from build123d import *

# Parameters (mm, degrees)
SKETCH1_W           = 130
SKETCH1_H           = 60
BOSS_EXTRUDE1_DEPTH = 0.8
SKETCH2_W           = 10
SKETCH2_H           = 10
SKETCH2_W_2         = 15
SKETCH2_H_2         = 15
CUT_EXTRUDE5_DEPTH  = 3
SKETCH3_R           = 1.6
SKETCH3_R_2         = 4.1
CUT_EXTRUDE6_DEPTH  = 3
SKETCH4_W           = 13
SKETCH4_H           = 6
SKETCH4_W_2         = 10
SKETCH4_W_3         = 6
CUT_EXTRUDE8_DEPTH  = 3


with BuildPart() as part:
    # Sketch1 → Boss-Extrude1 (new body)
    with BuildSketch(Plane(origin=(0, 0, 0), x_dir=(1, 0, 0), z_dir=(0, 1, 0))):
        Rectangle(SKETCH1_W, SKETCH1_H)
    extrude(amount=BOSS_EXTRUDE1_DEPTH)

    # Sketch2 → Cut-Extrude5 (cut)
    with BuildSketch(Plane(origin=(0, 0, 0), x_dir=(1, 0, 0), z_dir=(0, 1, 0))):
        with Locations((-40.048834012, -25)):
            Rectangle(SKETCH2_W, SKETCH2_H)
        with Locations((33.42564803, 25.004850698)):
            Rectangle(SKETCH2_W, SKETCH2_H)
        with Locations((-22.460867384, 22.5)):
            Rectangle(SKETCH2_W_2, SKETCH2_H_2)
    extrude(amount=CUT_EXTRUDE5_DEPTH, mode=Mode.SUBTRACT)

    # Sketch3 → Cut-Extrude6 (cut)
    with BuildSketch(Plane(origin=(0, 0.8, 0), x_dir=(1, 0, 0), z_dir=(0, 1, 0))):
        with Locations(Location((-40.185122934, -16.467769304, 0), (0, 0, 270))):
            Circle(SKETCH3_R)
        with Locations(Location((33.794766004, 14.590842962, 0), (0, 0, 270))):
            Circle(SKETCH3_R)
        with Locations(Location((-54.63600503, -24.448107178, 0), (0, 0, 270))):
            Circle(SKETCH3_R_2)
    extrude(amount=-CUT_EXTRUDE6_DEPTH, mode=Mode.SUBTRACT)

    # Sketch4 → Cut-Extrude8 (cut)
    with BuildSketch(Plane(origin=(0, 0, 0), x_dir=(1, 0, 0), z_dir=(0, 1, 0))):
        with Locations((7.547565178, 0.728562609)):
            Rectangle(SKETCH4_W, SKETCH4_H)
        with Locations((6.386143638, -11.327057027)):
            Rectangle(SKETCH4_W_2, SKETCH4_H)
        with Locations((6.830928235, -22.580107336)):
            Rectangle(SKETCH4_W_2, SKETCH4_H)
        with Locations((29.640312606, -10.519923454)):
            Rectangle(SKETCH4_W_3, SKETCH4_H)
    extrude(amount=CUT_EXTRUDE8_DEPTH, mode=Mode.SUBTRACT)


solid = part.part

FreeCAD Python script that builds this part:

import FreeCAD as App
import Part
import Sketcher
Q = App.Units.Quantity

doc = App.newDocument("Part")
body = doc.addObject("PartDesign::Body", "Body")

sketch1 = body.newObject("Sketcher::SketchObject", "Sketch")
sketch1.AttachmentSupport = (doc.getObject("XZ_Plane"), [""])
sketch1.MapMode = "FlatFace"
sketch1.addGeometry([
    Part.LineSegment(App.Vector(-65, -30, 0), App.Vector(-65, 30, 0)),
    Part.LineSegment(App.Vector(-65, 30, 0), App.Vector(65, 30, 0)),
    Part.LineSegment(App.Vector(65, 30, 0), App.Vector(65, -30, 0)),
    Part.LineSegment(App.Vector(65, -30, 0), App.Vector(-65, -30, 0)),
], False)
sketch1.addConstraint([
    Sketcher.Constraint("Coincident", 0, 2, 1, 1),
    Sketcher.Constraint("Coincident", 1, 2, 2, 1),
    Sketcher.Constraint("Coincident", 2, 2, 3, 1),
    Sketcher.Constraint("Coincident", 3, 2, 0, 1),
    Sketcher.Constraint("Vertical", 0),
    Sketcher.Constraint("Horizontal", 1),
    Sketcher.Constraint("Vertical", 2),
    Sketcher.Constraint("Horizontal", 3),
    Sketcher.Constraint("Symmetric", 0, 2, 2, 2, -1, 1),
    Sketcher.Constraint("DistanceX", 1, 1, 1, 2, Q("130 mm")),
    Sketcher.Constraint("DistanceY", 0, 1, 0, 2, Q("60 mm")),
])
pad1 = body.newObject("PartDesign::Pad", "Pad")
pad1.Profile = sketch1
pad1.Length = 0.8
pad1.Reversed = True

sketch2 = body.newObject("Sketcher::SketchObject", "Sketch001")
sketch2.AttachmentSupport = (doc.getObject("XZ_Plane"), [""])
sketch2.MapMode = "FlatFace"
sketch2.addGeometry([
    Part.LineSegment(App.Vector(-45, 20, 0), App.Vector(-45, 30, 0)),
    Part.LineSegment(App.Vector(-45, 30, 0), App.Vector(-35, 30, 0)),
    Part.LineSegment(App.Vector(-35, 30, 0), App.Vector(-35, 20, 0)),
    Part.LineSegment(App.Vector(-35, 20, 0), App.Vector(-45, 20, 0)),
    Part.LineSegment(App.Vector(28, -30, 0), App.Vector(28, -20, 0)),
    Part.LineSegment(App.Vector(28, -20, 0), App.Vector(38, -20, 0)),
    Part.LineSegment(App.Vector(38, -20, 0), App.Vector(38, -30, 0)),
    Part.LineSegment(App.Vector(38, -30, 0), App.Vector(28, -30, 0)),
    Part.LineSegment(App.Vector(-30, -30, 0), App.Vector(-30, -15, 0)),
    Part.LineSegment(App.Vector(-30, -15, 0), App.Vector(-15, -15, 0)),
    Part.LineSegment(App.Vector(-15, -15, 0), App.Vector(-15, -30, 0)),
    Part.LineSegment(App.Vector(-15, -30, 0), App.Vector(-30, -30, 0)),
], False)
sketch2.addConstraint([
    Sketcher.Constraint("Coincident", 0, 2, 1, 1),
    Sketcher.Constraint("Coincident", 1, 2, 2, 1),
    Sketcher.Constraint("Coincident", 2, 2, 3, 1),
    Sketcher.Constraint("Coincident", 3, 2, 0, 1),
    Sketcher.Constraint("Coincident", 4, 2, 5, 1),
    Sketcher.Constraint("Coincident", 5, 2, 6, 1),
    Sketcher.Constraint("Coincident", 6, 2, 7, 1),
    Sketcher.Constraint("Coincident", 7, 2, 4, 1),
    Sketcher.Constraint("Coincident", 8, 2, 9, 1),
    Sketcher.Constraint("Coincident", 9, 2, 10, 1),
    Sketcher.Constraint("Coincident", 10, 2, 11, 1),
    Sketcher.Constraint("Coincident", 11, 2, 8, 1),
    Sketcher.Constraint("Vertical", 0),
    Sketcher.Constraint("Horizontal", 1),
    Sketcher.Constraint("Vertical", 2),
    Sketcher.Constraint("Horizontal", 3),
    Sketcher.Constraint("Vertical", 4),
    Sketcher.Constraint("Horizontal", 5),
    Sketcher.Constraint("Vertical", 6),
    Sketcher.Constraint("Horizontal", 7),
    Sketcher.Constraint("Vertical", 8),
    Sketcher.Constraint("Horizontal", 9),
    Sketcher.Constraint("Vertical", 10),
    Sketcher.Constraint("Horizontal", 11),
    Sketcher.Constraint("Equal", 3, 5),
    Sketcher.Constraint("Equal", 7, 0),
    Sketcher.Constraint("Equal", 2, 4),
    Sketcher.Constraint("Equal", 11, 8),
    Sketcher.Constraint("DistanceX", 1, 1, 1, 2, Q("10 mm")),
    Sketcher.Constraint("DistanceX", 9, 1, 9, 2, Q("15 mm")),
    Sketcher.Constraint("DistanceY", -1, 1, 0, 2, Q("30 mm")),
    Sketcher.Constraint("DistanceY", 8, 2, -1, 1, Q("15 mm")),
    Sketcher.Constraint("DistanceX", -1, 1, 4, 2, Q("28.425648 mm")),
    Sketcher.Constraint("DistanceY", 4, 2, -1, 1, Q("20.004851 mm")),
    Sketcher.Constraint("DistanceX", 0, 2, -1, 1, Q("45.048834 mm")),
    Sketcher.Constraint("DistanceX", 8, 2, -1, 1, Q("29.960867 mm")),
])
pocket1 = body.newObject("PartDesign::Pocket", "Pocket")
pocket1.Profile = sketch2
pocket1.Length = 3

sketch3 = body.newObject("Sketcher::SketchObject", "Sketch002")
sketch3.AttachmentSupport = (doc.getObject("XZ_Plane"), [""])
sketch3.MapMode = "FlatFace"
sketch3.AttachmentOffset = App.Placement(App.Vector(0, 0, -0.8), App.Rotation())
sketch3.addGeometry([
    Part.Circle(App.Vector(-40.2, 16.5, 0), App.Vector(0, 0, 1), 1.6),
    Part.Circle(App.Vector(33.8, -14.6, 0), App.Vector(0, 0, 1), 1.6),
    Part.Circle(App.Vector(-54.6, 24.4, 0), App.Vector(0, 0, 1), 4.1),
], False)
sketch3.addConstraint([
    Sketcher.Constraint("Equal", 0, 1),
    Sketcher.Constraint("Diameter", 0, Q("3.2 mm")),
    Sketcher.Constraint("Diameter", 2, Q("8.2 mm")),
    Sketcher.Constraint("DistanceY", -1, 1, 0, 3, Q("16.467769 mm")),
    Sketcher.Constraint("DistanceX", 0, 3, 1, 3, Q("73.979889 mm")),
    Sketcher.Constraint("DistanceX", 2, 3, 1, 3, Q("88.430771 mm")),
    Sketcher.Constraint("DistanceY", 1, 3, 2, 3, Q("39.03895 mm")),
    Sketcher.Constraint("DistanceX", 0, 3, -1, 1, Q("40.185123 mm")),
    Sketcher.Constraint("DistanceY", 1, 3, -1, 1, Q("14.590843 mm")),
])
pocket2 = body.newObject("PartDesign::Pocket", "Pocket001")
pocket2.Profile = sketch3
pocket2.Length = 3
pocket2.Reversed = True

sketch4 = body.newObject("Sketcher::SketchObject", "Sketch003")
sketch4.AttachmentSupport = (doc.getObject("XZ_Plane"), [""])
sketch4.MapMode = "FlatFace"
sketch4.addGeometry([
    Part.LineSegment(App.Vector(1, -4, 0), App.Vector(1, 2, 0)),
    Part.LineSegment(App.Vector(1, 2, 0), App.Vector(14, 2, 0)),
    Part.LineSegment(App.Vector(14, 2, 0), App.Vector(14, -4, 0)),
    Part.LineSegment(App.Vector(14, -4, 0), App.Vector(1, -4, 0)),
    Part.LineSegment(App.Vector(1, 8, 0), App.Vector(1, 14, 0)),
    Part.LineSegment(App.Vector(1, 14, 0), App.Vector(11, 14, 0)),
    Part.LineSegment(App.Vector(11, 14, 0), App.Vector(11, 8, 0)),
    Part.LineSegment(App.Vector(11, 8, 0), App.Vector(1, 8, 0)),
    Part.LineSegment(App.Vector(2, 20, 0), App.Vector(2, 26, 0)),
    Part.LineSegment(App.Vector(2, 26, 0), App.Vector(12, 26, 0)),
    Part.LineSegment(App.Vector(12, 26, 0), App.Vector(12, 20, 0)),
    Part.LineSegment(App.Vector(12, 20, 0), App.Vector(2, 20, 0)),
    Part.LineSegment(App.Vector(27, 8, 0), App.Vector(27, 14, 0)),
    Part.LineSegment(App.Vector(27, 14, 0), App.Vector(33, 14, 0)),
    Part.LineSegment(App.Vector(33, 14, 0), App.Vector(33, 8, 0)),
    Part.LineSegment(App.Vector(33, 8, 0), App.Vector(27, 8, 0)),
], False)
sketch4.addConstraint([
    Sketcher.Constraint("Coincident", 0, 2, 1, 1),
    Sketcher.Constraint("Coincident", 1, 2, 2, 1),
    Sketcher.Constraint("Coincident", 2, 2, 3, 1),
    Sketcher.Constraint("Coincident", 3, 2, 0, 1),
    Sketcher.Constraint("Coincident", 4, 2, 5, 1),
    Sketcher.Constraint("Coincident", 5, 2, 6, 1),
    Sketcher.Constraint("Coincident", 6, 2, 7, 1),
    Sketcher.Constraint("Coincident", 7, 2, 4, 1),
    Sketcher.Constraint("Coincident", 8, 2, 9, 1),
    Sketcher.Constraint("Coincident", 9, 2, 10, 1),
    Sketcher.Constraint("Coincident", 10, 2, 11, 1),
    Sketcher.Constraint("Coincident", 11, 2, 8, 1),
    Sketcher.Constraint("Coincident", 12, 2, 13, 1),
    Sketcher.Constraint("Coincident", 13, 2, 14, 1),
    Sketcher.Constraint("Coincident", 14, 2, 15, 1),
    Sketcher.Constraint("Coincident", 15, 2, 12, 1),
    Sketcher.Constraint("Vertical", 0),
    Sketcher.Constraint("Horizontal", 1),
    Sketcher.Constraint("Vertical", 2),
    Sketcher.Constraint("Horizontal", 3),
    Sketcher.Constraint("Vertical", 4),
    Sketcher.Constraint("Horizontal", 5),
    Sketcher.Constraint("Vertical", 6),
    Sketcher.Constraint("Horizontal", 7),
    Sketcher.Constraint("Vertical", 8),
    Sketcher.Constraint("Horizontal", 9),
    Sketcher.Constraint("Vertical", 10),
    Sketcher.Constraint("Horizontal", 11),
    Sketcher.Constraint("Vertical", 12),
    Sketcher.Constraint("Horizontal", 13),
    Sketcher.Constraint("Vertical", 14),
    Sketcher.Constraint("Horizontal", 15),
    Sketcher.Constraint("Equal", 7, 9),
    Sketcher.Constraint("Equal", 15, 0),
    Sketcher.Constraint("Equal", 2, 4),
    Sketcher.Constraint("Equal", 6, 8),
    Sketcher.Constraint("Equal", 10, 12),
    Sketcher.Constraint("DistanceX", 1, 1, 1, 2, Q("13 mm")),
    Sketcher.Constraint("DistanceX", 5, 1, 5, 2, Q("10 mm")),
    Sketcher.Constraint("DistanceX", 13, 1, 13, 2, Q("6 mm")),
    Sketcher.Constraint("DistanceX", -1, 1, 8, 2, Q("1.830928 mm")),
    Sketcher.Constraint("DistanceX", 0, 2, 4, 2, Q("0.338578 mm")),
    Sketcher.Constraint("DistanceY", 0, 2, 4, 2, Q("12.05562 mm")),
    Sketcher.Constraint("DistanceY", 4, 2, 8, 2, Q("11.25305 mm")),
    Sketcher.Constraint("DistanceX", 5, 2, 12, 2, Q("15.254169 mm")),
    Sketcher.Constraint("DistanceX", -1, 1, 0, 2, Q("1.047565 mm")),
    Sketcher.Constraint("DistanceY", -1, 1, 0, 2, Q("2.271437 mm")),
    Sketcher.Constraint("DistanceY", -1, 1, 12, 2, Q("13.519923 mm")),
])
pocket3 = body.newObject("PartDesign::Pocket", "Pocket002")
pocket3.Profile = sketch4
pocket3.Length = 3

doc.recompute()
